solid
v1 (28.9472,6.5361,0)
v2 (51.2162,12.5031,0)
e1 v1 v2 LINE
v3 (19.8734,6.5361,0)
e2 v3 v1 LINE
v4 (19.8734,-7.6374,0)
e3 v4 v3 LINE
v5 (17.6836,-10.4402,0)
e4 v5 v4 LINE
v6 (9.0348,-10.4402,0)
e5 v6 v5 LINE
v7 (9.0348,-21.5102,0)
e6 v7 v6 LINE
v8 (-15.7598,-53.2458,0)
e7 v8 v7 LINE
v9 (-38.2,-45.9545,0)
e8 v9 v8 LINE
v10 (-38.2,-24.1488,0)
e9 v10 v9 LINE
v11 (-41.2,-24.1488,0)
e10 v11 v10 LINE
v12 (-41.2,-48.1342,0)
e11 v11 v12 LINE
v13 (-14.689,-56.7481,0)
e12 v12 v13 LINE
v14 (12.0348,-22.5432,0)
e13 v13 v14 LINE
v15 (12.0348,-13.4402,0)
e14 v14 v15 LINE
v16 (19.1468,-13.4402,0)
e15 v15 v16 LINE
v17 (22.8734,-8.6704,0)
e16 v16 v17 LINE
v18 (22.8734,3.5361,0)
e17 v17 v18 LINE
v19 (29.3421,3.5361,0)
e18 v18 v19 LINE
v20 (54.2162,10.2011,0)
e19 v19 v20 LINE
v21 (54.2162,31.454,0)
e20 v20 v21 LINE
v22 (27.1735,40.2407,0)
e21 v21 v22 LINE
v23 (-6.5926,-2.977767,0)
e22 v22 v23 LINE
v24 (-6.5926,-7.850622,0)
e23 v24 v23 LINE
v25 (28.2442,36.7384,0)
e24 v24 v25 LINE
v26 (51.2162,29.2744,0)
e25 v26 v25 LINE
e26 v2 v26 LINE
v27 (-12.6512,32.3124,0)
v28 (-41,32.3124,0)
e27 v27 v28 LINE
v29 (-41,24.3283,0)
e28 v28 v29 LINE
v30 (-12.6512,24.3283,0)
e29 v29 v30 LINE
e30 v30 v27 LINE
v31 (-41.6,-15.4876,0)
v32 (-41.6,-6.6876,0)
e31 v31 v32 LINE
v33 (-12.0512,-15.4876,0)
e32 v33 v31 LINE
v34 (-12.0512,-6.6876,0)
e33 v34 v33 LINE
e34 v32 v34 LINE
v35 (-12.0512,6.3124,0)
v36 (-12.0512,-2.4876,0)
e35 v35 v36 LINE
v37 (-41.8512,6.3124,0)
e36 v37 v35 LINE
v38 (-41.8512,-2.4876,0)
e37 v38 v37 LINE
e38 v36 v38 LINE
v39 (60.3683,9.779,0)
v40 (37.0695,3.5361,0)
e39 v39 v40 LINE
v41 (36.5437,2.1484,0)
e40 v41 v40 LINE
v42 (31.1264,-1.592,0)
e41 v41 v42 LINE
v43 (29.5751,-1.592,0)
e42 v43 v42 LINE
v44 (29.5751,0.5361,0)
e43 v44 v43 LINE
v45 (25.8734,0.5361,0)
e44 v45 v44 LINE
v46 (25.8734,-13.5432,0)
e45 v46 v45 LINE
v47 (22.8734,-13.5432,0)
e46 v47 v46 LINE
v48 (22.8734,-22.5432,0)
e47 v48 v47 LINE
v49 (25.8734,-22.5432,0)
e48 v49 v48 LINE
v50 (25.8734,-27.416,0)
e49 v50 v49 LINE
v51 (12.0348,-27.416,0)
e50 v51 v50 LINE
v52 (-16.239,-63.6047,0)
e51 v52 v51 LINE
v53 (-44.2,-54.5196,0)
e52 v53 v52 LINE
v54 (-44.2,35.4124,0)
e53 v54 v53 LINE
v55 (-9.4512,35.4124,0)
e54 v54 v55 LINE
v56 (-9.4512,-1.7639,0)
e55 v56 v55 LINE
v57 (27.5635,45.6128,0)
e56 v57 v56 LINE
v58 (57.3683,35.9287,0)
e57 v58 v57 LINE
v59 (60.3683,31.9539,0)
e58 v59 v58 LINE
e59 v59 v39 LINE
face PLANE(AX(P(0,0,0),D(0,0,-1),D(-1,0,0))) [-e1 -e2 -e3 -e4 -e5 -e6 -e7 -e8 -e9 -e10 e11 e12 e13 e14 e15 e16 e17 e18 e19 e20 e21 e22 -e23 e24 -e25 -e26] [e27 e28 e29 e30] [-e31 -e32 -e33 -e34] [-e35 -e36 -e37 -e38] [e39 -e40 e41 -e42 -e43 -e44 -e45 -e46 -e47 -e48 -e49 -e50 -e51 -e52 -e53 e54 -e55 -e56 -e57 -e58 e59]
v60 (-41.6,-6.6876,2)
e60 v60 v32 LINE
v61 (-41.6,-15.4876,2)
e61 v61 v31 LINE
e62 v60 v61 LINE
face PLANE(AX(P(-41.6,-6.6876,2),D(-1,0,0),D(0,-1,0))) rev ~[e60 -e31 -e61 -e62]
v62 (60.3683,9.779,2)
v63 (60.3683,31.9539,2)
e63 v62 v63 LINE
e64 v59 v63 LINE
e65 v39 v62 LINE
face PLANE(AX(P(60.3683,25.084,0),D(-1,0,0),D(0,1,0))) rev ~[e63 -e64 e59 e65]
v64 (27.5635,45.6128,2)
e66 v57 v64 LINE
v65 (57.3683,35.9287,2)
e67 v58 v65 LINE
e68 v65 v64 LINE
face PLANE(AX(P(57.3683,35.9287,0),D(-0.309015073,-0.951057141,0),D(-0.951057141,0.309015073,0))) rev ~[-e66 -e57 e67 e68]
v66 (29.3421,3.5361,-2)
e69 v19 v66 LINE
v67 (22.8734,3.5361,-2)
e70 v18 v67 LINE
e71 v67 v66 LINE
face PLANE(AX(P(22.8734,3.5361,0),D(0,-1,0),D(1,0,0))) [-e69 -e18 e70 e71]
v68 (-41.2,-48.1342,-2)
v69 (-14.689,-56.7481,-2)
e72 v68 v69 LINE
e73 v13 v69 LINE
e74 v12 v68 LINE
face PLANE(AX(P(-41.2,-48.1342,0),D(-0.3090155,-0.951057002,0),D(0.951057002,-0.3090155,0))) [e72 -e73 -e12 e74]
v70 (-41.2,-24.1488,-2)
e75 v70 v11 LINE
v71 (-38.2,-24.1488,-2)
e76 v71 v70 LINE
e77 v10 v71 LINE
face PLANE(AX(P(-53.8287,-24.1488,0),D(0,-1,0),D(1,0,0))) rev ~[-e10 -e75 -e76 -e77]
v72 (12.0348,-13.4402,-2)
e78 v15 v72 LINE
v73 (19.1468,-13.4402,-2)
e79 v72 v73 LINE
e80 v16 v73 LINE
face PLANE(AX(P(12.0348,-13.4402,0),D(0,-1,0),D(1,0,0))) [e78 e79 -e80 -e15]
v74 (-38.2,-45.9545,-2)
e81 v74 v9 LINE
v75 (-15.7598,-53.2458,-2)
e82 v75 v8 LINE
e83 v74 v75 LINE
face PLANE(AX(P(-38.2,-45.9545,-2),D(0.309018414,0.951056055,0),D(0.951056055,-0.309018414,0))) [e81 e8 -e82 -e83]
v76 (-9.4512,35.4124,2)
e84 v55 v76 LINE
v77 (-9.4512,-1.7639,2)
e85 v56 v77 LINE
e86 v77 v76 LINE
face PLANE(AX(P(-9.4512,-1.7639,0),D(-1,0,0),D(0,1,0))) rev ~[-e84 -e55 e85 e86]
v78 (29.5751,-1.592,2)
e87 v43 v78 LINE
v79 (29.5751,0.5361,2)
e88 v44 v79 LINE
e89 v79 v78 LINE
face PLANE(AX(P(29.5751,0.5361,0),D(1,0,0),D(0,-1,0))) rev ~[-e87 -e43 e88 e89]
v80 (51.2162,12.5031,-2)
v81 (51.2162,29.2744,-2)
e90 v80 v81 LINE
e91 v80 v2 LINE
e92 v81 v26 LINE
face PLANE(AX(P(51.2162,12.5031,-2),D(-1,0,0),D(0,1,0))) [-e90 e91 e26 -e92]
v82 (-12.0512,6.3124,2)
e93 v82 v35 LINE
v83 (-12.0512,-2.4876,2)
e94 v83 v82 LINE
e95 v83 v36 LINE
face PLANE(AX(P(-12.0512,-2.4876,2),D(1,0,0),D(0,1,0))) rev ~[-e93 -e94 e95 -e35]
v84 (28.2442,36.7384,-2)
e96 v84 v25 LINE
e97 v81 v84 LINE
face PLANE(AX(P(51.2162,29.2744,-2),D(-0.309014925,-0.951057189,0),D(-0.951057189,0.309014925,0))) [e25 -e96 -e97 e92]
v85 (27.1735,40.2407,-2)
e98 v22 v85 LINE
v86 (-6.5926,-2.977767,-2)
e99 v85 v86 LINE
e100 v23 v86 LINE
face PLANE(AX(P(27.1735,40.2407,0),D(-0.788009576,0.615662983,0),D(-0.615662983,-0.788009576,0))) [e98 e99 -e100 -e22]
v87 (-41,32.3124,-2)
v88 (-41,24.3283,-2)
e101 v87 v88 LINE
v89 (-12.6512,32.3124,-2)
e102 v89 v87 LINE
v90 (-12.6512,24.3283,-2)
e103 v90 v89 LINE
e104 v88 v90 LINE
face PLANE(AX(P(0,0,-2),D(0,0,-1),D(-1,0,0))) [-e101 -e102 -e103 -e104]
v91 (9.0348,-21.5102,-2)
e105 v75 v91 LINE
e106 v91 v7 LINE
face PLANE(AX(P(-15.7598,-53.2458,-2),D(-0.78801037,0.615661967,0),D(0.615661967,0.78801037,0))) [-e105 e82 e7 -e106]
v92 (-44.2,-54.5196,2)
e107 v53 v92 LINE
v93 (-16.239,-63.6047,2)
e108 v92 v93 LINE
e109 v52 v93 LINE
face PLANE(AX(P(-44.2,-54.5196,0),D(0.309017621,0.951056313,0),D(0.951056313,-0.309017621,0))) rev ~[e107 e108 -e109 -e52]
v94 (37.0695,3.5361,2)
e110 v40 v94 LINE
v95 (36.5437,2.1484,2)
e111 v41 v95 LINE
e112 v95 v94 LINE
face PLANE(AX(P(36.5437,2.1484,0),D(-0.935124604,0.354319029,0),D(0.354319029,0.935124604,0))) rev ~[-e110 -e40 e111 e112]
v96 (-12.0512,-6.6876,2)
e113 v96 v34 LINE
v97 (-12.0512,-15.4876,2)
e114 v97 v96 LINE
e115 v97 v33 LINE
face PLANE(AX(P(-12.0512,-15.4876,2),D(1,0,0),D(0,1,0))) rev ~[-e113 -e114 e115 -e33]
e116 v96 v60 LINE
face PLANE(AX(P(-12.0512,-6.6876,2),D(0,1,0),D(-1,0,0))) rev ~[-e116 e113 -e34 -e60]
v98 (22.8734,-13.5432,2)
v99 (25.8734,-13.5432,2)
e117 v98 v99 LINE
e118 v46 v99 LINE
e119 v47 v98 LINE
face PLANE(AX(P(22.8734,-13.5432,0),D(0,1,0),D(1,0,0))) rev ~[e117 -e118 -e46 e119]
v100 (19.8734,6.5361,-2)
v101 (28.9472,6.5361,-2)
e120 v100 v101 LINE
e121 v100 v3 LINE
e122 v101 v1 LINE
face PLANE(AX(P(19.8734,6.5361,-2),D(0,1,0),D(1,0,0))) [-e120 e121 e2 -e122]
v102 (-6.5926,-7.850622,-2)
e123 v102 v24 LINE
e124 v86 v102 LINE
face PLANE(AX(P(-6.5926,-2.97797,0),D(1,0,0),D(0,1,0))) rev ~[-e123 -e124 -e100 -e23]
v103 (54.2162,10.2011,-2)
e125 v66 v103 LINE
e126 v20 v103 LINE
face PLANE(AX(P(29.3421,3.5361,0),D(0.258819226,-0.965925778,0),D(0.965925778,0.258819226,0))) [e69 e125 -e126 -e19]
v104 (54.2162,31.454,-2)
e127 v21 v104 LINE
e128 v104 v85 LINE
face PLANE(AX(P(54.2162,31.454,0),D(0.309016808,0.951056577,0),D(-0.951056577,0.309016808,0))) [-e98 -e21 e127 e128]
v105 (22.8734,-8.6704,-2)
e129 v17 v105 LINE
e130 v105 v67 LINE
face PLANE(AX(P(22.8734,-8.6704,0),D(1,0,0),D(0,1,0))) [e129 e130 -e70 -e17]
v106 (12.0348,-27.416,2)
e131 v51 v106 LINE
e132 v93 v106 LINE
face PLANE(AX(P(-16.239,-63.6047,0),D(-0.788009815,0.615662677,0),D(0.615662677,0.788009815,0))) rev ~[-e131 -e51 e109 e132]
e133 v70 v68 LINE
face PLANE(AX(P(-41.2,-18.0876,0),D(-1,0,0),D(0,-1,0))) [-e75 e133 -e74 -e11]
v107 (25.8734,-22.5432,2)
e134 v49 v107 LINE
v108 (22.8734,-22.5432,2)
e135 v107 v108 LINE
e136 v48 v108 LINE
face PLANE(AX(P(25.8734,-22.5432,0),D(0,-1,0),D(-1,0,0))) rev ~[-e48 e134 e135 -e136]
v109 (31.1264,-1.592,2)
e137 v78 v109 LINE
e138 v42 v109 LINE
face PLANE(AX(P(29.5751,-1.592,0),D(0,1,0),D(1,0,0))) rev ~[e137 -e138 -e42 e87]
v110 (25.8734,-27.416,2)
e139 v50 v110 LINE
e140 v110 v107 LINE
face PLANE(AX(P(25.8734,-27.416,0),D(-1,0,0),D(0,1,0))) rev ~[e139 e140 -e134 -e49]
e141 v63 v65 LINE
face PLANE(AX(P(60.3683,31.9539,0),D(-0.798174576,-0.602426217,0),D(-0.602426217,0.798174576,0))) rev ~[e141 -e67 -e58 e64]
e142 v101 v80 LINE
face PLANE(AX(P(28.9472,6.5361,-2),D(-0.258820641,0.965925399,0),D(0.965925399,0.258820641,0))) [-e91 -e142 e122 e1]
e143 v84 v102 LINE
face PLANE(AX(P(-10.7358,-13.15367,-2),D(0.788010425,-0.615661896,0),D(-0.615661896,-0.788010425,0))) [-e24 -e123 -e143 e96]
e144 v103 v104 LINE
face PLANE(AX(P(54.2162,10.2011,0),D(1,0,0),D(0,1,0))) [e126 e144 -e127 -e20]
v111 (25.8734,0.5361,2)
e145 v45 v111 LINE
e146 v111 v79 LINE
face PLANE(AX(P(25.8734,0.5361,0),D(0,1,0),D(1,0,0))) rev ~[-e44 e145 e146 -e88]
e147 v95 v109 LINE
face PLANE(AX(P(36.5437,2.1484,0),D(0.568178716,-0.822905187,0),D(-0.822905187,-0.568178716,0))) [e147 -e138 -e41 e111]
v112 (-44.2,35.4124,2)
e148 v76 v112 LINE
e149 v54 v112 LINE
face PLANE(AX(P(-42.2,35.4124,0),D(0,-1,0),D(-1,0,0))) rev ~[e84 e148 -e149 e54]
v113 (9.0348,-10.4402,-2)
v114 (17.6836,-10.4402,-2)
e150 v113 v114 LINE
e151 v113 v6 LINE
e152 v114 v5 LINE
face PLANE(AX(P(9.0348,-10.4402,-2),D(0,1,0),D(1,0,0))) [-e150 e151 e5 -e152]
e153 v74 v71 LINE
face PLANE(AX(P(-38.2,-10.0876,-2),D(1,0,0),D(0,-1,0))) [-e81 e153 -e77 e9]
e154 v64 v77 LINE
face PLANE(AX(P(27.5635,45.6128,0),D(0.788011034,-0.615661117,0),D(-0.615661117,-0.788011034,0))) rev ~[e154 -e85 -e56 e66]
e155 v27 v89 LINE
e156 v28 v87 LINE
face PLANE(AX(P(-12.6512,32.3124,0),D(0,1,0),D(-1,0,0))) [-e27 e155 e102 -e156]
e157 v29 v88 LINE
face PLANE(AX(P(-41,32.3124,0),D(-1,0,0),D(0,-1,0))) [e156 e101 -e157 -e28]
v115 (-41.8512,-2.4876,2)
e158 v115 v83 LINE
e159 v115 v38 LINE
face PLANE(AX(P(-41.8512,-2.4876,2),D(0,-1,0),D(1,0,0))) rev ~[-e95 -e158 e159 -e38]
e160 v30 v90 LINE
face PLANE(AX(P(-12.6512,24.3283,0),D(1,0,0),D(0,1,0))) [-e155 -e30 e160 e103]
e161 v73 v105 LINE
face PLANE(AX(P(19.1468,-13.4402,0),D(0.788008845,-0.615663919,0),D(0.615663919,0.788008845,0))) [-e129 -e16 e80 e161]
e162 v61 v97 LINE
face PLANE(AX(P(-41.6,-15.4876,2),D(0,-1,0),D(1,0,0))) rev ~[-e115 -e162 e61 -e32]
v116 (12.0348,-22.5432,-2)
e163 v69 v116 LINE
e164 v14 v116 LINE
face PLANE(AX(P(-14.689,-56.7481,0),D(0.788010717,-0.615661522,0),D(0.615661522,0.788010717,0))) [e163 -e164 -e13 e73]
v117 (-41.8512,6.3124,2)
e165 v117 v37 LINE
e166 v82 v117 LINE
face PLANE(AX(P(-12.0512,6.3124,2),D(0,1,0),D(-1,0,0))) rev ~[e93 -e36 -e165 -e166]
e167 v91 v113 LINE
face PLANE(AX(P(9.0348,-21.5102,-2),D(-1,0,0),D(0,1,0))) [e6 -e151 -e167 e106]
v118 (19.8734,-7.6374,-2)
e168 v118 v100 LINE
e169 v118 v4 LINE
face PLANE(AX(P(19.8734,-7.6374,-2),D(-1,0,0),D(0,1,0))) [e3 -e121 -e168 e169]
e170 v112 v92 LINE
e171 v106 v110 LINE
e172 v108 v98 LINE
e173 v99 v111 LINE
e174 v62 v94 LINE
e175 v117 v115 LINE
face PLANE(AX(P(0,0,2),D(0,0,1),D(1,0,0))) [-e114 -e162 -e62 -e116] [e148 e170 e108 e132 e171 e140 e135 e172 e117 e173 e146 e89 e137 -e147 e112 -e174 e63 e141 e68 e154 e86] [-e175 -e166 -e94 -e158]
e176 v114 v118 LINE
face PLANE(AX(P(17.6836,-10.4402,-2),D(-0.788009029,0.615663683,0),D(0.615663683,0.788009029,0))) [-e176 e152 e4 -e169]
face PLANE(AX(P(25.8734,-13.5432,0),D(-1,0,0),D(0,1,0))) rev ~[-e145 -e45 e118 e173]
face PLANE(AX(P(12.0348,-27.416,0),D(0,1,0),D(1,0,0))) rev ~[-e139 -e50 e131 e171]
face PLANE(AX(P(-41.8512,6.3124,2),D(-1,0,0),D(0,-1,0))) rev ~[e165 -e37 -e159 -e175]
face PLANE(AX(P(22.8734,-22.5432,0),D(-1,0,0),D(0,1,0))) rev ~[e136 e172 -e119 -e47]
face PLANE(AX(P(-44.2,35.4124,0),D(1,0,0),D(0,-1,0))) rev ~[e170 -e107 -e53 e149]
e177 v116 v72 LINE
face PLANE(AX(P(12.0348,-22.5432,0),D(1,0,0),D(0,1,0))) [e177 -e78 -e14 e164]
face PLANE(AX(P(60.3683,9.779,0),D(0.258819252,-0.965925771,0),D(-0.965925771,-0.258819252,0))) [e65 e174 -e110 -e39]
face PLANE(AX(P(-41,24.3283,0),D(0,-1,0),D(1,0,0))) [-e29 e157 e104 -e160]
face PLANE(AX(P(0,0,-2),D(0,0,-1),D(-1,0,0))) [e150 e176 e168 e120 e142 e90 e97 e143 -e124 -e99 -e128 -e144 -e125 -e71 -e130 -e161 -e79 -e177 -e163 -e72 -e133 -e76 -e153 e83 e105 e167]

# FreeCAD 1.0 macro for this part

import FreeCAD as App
import Part
import Sketcher

V = App.Vector
Q = App.Units.Quantity

doc = App.newDocument("Part")
body = doc.addObject("PartDesign::Body", "Body")

sketch1 = doc.addObject("Sketcher::SketchObject", "Sketch")
body.addObject(sketch1)
sketch1.AttachmentSupport = (doc.XY_Plane, [""])
sketch1.MapMode = "FlatFace"
sketch1.addGeometry(Part.LineSegment(V(31.1264, -1.592, 0), V(36.5437, 2.1484, 0)), False)
sketch1.addGeometry(Part.LineSegment(V(36.5437, 2.1484, 0), V(37.0695, 3.5361, 0)), False)
sketch1.addGeometry(Part.LineSegment(V(37.0695, 3.5361, 0), V(60.3683, 9.779, 0)), False)
sketch1.addGeometry(Part.LineSegment(V(60.3683, 9.779, 0), V(60.3683, 31.9539, 0)), False)
sketch1.addGeometry(Part.LineSegment(V(60.3683, 31.9539, 0), V(57.3683, 35.9287, 0)), False)
sketch1.addGeometry(Part.LineSegment(V(57.3683, 35.9287, 0), V(27.5635, 45.6128, 0)), False)
sketch1.addGeometry(Part.LineSegment(V(27.5635, 45.6128, 0), V(-9.4512, -1.7639, 0)), False)
sketch1.addGeometry(Part.LineSegment(V(-9.4512, -1.7639, 0), V(-9.4512, 35.4124, 0)), False)
sketch1.addGeometry(Part.LineSegment(V(-9.4512, 35.4124, 0), V(-44.2, 35.4124, 0)), False)
sketch1.addGeometry(Part.LineSegment(V(-44.2, 35.4124, 0), V(-44.2, -54.5196, 0)), False)
sketch1.addGeometry(Part.LineSegment(V(-44.2, -54.5196, 0), V(-16.239, -63.6047, 0)), False)
sketch1.addGeometry(Part.LineSegment(V(-16.239, -63.6047, 0), V(12.0348, -27.416, 0)), False)
sketch1.addGeometry(Part.LineSegment(V(12.0348, -27.416, 0), V(25.8734, -27.416, 0)), False)
sketch1.addGeometry(Part.LineSegment(V(25.8734, -27.416, 0), V(25.8734, -22.5432, 0)), False)
sketch1.addGeometry(Part.LineSegment(V(25.8734, -22.5432, 0), V(22.8734, -22.5432, 0)), False)
sketch1.addGeometry(Part.LineSegment(V(22.8734, -22.5432, 0), V(22.8734, -13.5432, 0)), False)
sketch1.addGeometry(Part.LineSegment(V(22.8734, -13.5432, 0), V(25.8734, -13.5432, 0)), False)
sketch1.addGeometry(Part.LineSegment(V(25.8734, -13.5432, 0), V(25.8734, 0.5361, 0)), False)
sketch1.addGeometry(Part.LineSegment(V(25.8734, 0.5361, 0), V(29.5751, 0.5361, 0)), False)
sketch1.addGeometry(Part.LineSegment(V(29.5751, 0.5361, 0), V(29.5751, -1.592, 0)), False)
sketch1.addGeometry(Part.LineSegment(V(29.5751, -1.592, 0), V(31.1264, -1.592, 0)), False)
sketch1.addGeometry(Part.LineSegment(V(-41.2, -15.0876, 0), V(-41.2, -7.0876, 0)), False)
sketch1.addGeometry(Part.LineSegment(V(-41.2, -7.0876, 0), V(-12.4512, -7.0876, 0)), False)
sketch1.addGeometry(Part.LineSegment(V(-12.4512, -7.0876, 0), V(-12.4512, -15.0876, 0)), False)
sketch1.addGeometry(Part.LineSegment(V(-12.4512, -15.0876, 0), V(-41.2, -15.0876, 0)), False)
sketch1.addGeometry(Part.LineSegment(V(-41.4512, 5.9124, 0), V(-12.4512, 5.9124, 0)), False)
sketch1.addGeometry(Part.LineSegment(V(-12.4512, 5.9124, 0), V(-12.4512, -2.0876, 0)), False)
sketch1.addGeometry(Part.LineSegment(V(-12.4512, -2.0876, 0), V(-41.4512, -2.0876, 0)), False)
sketch1.addGeometry(Part.LineSegment(V(-41.4512, -2.0876, 0), V(-41.4512, 5.9124, 0)), False)
sketch1.addConstraint(Sketcher.Constraint("Coincident", 0, 2, 1, 1))
sketch1.addConstraint(Sketcher.Constraint("Coincident", 1, 2, 2, 1))
sketch1.addConstraint(Sketcher.Constraint("Coincident", 2, 2, 3, 1))
sketch1.addConstraint(Sketcher.Constraint("Coincident", 3, 2, 4, 1))
sketch1.addConstraint(Sketcher.Constraint("Coincident", 4, 2, 5, 1))
sketch1.addConstraint(Sketcher.Constraint("Coincident", 5, 2, 6, 1))
sketch1.addConstraint(Sketcher.Constraint("Coincident", 6, 2, 7, 1))
sketch1.addConstraint(Sketcher.Constraint("Coincident", 7, 2, 8, 1))
sketch1.addConstraint(Sketcher.Constraint("Coincident", 8, 2, 9, 1))
sketch1.addConstraint(Sketcher.Constraint("Coincident", 9, 2, 10, 1))
sketch1.addConstraint(Sketcher.Constraint("Coincident", 10, 2, 11, 1))
sketch1.addConstraint(Sketcher.Constraint("Coincident", 11, 2, 12, 1))
sketch1.addConstraint(Sketcher.Constraint("Coincident", 12, 2, 13, 1))
sketch1.addConstraint(Sketcher.Constraint("Coincident", 13, 2, 14, 1))
sketch1.addConstraint(Sketcher.Constraint("Coincident", 14, 2, 15, 1))
sketch1.addConstraint(Sketcher.Constraint("Coincident", 15, 2, 16, 1))
sketch1.addConstraint(Sketcher.Constraint("Coincident", 16, 2, 17, 1))
sketch1.addConstraint(Sketcher.Constraint("Coincident", 17, 2, 18, 1))
sketch1.addConstraint(Sketcher.Constraint("Coincident", 18, 2, 19, 1))
sketch1.addConstraint(Sketcher.Constraint("Coincident", 19, 2, 20, 1))
sketch1.addConstraint(Sketcher.Constraint("Coincident", 20, 2, 0, 1))
sketch1.addConstraint(Sketcher.Constraint("Coincident", 21, 2, 22, 1))
sketch1.addConstraint(Sketcher.Constraint("Coincident", 22, 2, 23, 1))
sketch1.addConstraint(Sketcher.Constraint("Coincident", 23, 2, 24, 1))
sketch1.addConstraint(Sketcher.Constraint("Coincident", 24, 2, 21, 1))
sketch1.addConstraint(Sketcher.Constraint("Coincident", 25, 2, 26, 1))
sketch1.addConstraint(Sketcher.Constraint("Coincident", 26, 2, 27, 1))
sketch1.addConstraint(Sketcher.Constraint("Coincident", 27, 2, 28, 1))
sketch1.addConstraint(Sketcher.Constraint("Coincident", 28, 2, 25, 1))
sketch1.addConstraint(Sketcher.Constraint("Vertical", 3))
sketch1.addConstraint(Sketcher.Constraint("Vertical", 7))
sketch1.addConstraint(Sketcher.Constraint("Horizontal", 8))
sketch1.addConstraint(Sketcher.Constraint("Vertical", 9))
sketch1.addConstraint(Sketcher.Constraint("Horizontal", 12))
sketch1.addConstraint(Sketcher.Constraint("Vertical", 13))
sketch1.addConstraint(Sketcher.Constraint("Horizontal", 14))
sketch1.addConstraint(Sketcher.Constraint("Vertical", 15))
sketch1.addConstraint(Sketcher.Constraint("Horizontal", 16))
sketch1.addConstraint(Sketcher.Constraint("Vertical", 17))
sketch1.addConstraint(Sketcher.Constraint("Horizontal", 18))
sketch1.addConstraint(Sketcher.Constraint("Vertical", 19))
sketch1.addConstraint(Sketcher.Constraint("Horizontal", 20))
sketch1.addConstraint(Sketcher.Constraint("Vertical", 21))
sketch1.addConstraint(Sketcher.Constraint("Horizontal", 22))
sketch1.addConstraint(Sketcher.Constraint("Vertical", 23))
sketch1.addConstraint(Sketcher.Constraint("Horizontal", 24))
sketch1.addConstraint(Sketcher.Constraint("Horizontal", 25))
sketch1.addConstraint(Sketcher.Constraint("Vertical", 26))
sketch1.addConstraint(Sketcher.Constraint("Horizontal", 27))
sketch1.addConstraint(Sketcher.Constraint("Vertical", 28))
sketch1.addConstraint(Sketcher.Constraint("Parallel", 5, 10))
sketch1.addConstraint(Sketcher.Constraint("Parallel", 6, 11))
sketch1.addConstraint(Sketcher.Constraint("Vertical", 13, 2, 16, 2))
sketch1.addConstraint(Sketcher.Constraint("Vertical", 23, 2, 25, 2))
sketch1.addConstraint(Sketcher.Constraint("Equal", 23, 26))
sketch1.addConstraint(Sketcher.Constraint("DistanceY", 21, 1, 21, 2, 8.0))
sketch1.addConstraint(Sketcher.Constraint("DistanceX", 14, 2, 14, 1, 3.0))
sketch1.addConstraint(Sketcher.Constraint("DistanceX", 25, 1, 25, 2, 29.0))
sketch1.addConstraint(Sketcher.Constraint("DistanceY", 15, 1, 15, 2, 9.0))
sketch1.addConstraint(Sketcher.Constraint("Angle", 2, Q("15 deg")))
sketch1.addConstraint(Sketcher.Constraint("Angle", 5, Q("162 deg")))
sketch1.addConstraint(Sketcher.Constraint("Angle", 6, Q("-128 deg")))
sketch1.addConstraint(Sketcher.Constraint("DistanceX", 4, 2, 3, 2, 3.0))
sketch1.addConstraint(Sketcher.Constraint("DistanceY", 17, 2, 1, 2, 3.0))
sketch1.addConstraint(Sketcher.Constraint("DistanceX", 8, 2, 21, 2, 3.0))
sketch1.addConstraint(Sketcher.Constraint("DistanceX", 22, 2, 6, 2, 3.0))
sketch1.addConstraint(Sketcher.Constraint("DistanceY", 22, 2, 25, 2, 13.0))
sketch1.addConstraint(Sketcher.Constraint("Distance", 10, 29.4))
sketch1.addConstraint(Sketcher.Constraint("DistanceX", 8, 2, -1, 1, 44.2))
sketch1.addConstraint(Sketcher.Constraint("DistanceY", 6, 2, 1, 2, 5.3))
sketch1.addConstraint(Sketcher.Constraint("DistanceY", 21, 2, 8, 2, 42.5))
sketch1.addConstraint(Sketcher.Constraint("DistanceY", 3, 1, 3, 2, 22.175))
sketch1.addConstraint(Sketcher.Constraint("DistanceY", 9, 2, 9, 1, 89.932))
sketch1.addConstraint(Sketcher.Constraint("DistanceY", 19, 2, 19, 1, 2.128))
sketch1.addConstraint(Sketcher.Constraint("Distance", 1, 1.484))
sketch1.addConstraint(Sketcher.Constraint("DistanceX", 8, 2, 8, 1, 34.7488))
sketch1.addConstraint(Sketcher.Constraint("DistanceX", 12, 1, 12, 2, 13.8386))
sketch1.addConstraint(Sketcher.Constraint("DistanceX", 18, 1, 18, 2, 3.7017))
sketch1.addConstraint(Sketcher.Constraint("DistanceX", 20, 1, 20, 2, 1.5513))
sketch1.addConstraint(Sketcher.Constraint("DistanceY", 7, 1, 7, 2, 37.1763))
sketch1.addConstraint(Sketcher.Constraint("DistanceY", 13, 1, 13, 2, 4.8728))
sketch1.addConstraint(Sketcher.Constraint("DistanceY", 17, 1, 17, 2, 14.0793))
sketch1.addConstraint(Sketcher.Constraint("DistanceY", -1, 1, 1, 2, 3.536))
sketch1.addConstraint(Sketcher.Constraint("DistanceY", -1, 1, 2, 2, 9.779))
sketch1.addConstraint(Sketcher.Constraint("DistanceY", 4, 2, 5, 2, 9.684))
sketch1.addConstraint(Sketcher.Constraint("DistanceY", 3, 2, 5, 2, 13.659))
sketch1.addConstraint(Sketcher.Constraint("DistanceX", 6, 2, 0, 2, 45.995))
pad1 = doc.addObject("PartDesign::Pad", "Pad")
body.addObject(pad1)
pad1.Profile = sketch1
pad1.Length = 2

sketch2 = doc.addObject("Sketcher::SketchObject", "Sketch001")
body.addObject(sketch2)
sketch2.AttachmentSupport = (doc.XY_Plane, [""])
sketch2.MapMode = "FlatFace"
sketch2.addGeometry(Part.LineSegment(V(-12.4512, -15.0876, 0), V(-14.4512, -15.0876, 0)), False)
sketch2.addGeometry(Part.LineSegment(V(-14.4512, -15.0876, 0), V(-14.4512, -17.0876, 0)), False)
sketch2.addGeometry(Part.LineSegment(V(-14.4512, -17.0876, 0), V(-10.7358, -17.0876, 0)), False)
sketch2.addGeometry(Part.LineSegment(V(-10.7358, -17.0876, 0), V(-10.7358, -8.2808, 0)), False)
sketch2.addGeometry(Part.LineSegment(V(-10.7358, -8.2808, 0), V(27.1735, 40.2407, 0)), False)
sketch2.addGeometry(Part.LineSegment(V(27.1735, 40.2407, 0), V(54.2162, 31.454, 0)), False)
sketch2.addGeometry(Part.LineSegment(V(54.2162, 31.454, 0), V(54.2162, 10.2011, 0)), False)
sketch2.addGeometry(Part.LineSegment(V(54.2162, 10.2011, 0), V(29.3421, 3.5361, 0)), False)
sketch2.addGeometry(Part.LineSegment(V(29.3421, 3.5361, 0), V(22.8734, 3.5361, 0)), False)
sketch2.addGeometry(Part.LineSegment(V(22.8734, 3.5361, 0), V(22.8734, -8.6704, 0)), False)
sketch2.addGeometry(Part.LineSegment(V(22.8734, -8.6704, 0), V(19.1468, -13.4402, 0)), False)
sketch2.addGeometry(Part.LineSegment(V(19.1468, -13.4402, 0), V(12.0348, -13.4402, 0)), False)
sketch2.addGeometry(Part.LineSegment(V(12.0348, -13.4402, 0), V(12.0348, -22.5432, 0)), False)
sketch2.addGeometry(Part.LineSegment(V(12.0348, -22.5432, 0), V(-14.689, -56.7481, 0)), False)
sketch2.addGeometry(Part.LineSegment(V(-14.689, -56.7481, 0), V(-41.2, -48.1342, 0)), False)
sketch2.addGeometry(Part.LineSegment(V(-41.2, -48.1342, 0), V(-41.2, -18.0876, 0)), False)
sketch2.addGeometry(Part.LineSegment(V(-41.2, -18.0876, 0), V(-38.2, -18.0876, 0)), False)
sketch2.addGeometry(Part.LineSegment(V(-38.2, -18.0876, 0), V(-38.2, -15.0876, 0)), False)
sketch2.addGeometry(Part.LineSegment(V(-38.2, -15.0876, 0), V(-41.2, -15.0876, 0)), False)
sketch2.addGeometry(Part.LineSegment(V(-41.2, -15.0876, 0), V(-41.2, -7.0876, 0)), False)
sketch2.addGeometry(Part.LineSegment(V(-41.2, -7.0876, 0), V(-38.2, -7.0876, 0)), False)
sketch2.addGeometry(Part.LineSegment(V(-38.2, -7.0876, 0), V(-38.2, -2.0876, 0)), False)
sketch2.addGeometry(Part.LineSegment(V(-38.2, -2.0876, 0), V(-15.4512, -2.0876, 0)), False)
sketch2.addGeometry(Part.LineSegment(V(-15.4512, -2.0876, 0), V(-15.4512, -7.0876, 0)), False)
sketch2.addGeometry(Part.LineSegment(V(-15.4512, -7.0876, 0), V(-12.4512, -7.0876, 0)), False)
sketch2.addGeometry(Part.LineSegment(V(-12.4512, -7.0876, 0), V(-12.4512, -15.0876, 0)), False)
sketch2.addGeometry(Part.LineSegment(V(-41, 32.3124, 0), V(-12.6512, 32.3124, 0)), False)
sketch2.addGeometry(Part.LineSegment(V(-12.6512, 32.3124, 0), V(-12.6512, 24.3283, 0)), False)
sketch2.addGeometry(Part.LineSegment(V(-12.6512, 24.3283, 0), V(-41, 24.3283, 0)), False)
sketch2.addGeometry(Part.LineSegment(V(-41, 24.3283, 0), V(-41, 32.3124, 0)), False)
sketch2.addConstraint(Sketcher.Constraint("Coincident", 0, 2, 1, 1))
sketch2.addConstraint(Sketcher.Constraint("Coincident", 1, 2, 2, 1))
sketch2.addConstraint(Sketcher.Constraint("Coincident", 2, 2, 3, 1))
sketch2.addConstraint(Sketcher.Constraint("Coincident", 3, 2, 4, 1))
sketch2.addConstraint(Sketcher.Constraint("Coincident", 4, 2, 5, 1))
sketch2.addConstraint(Sketcher.Constraint("Coincident", 5, 2, 6, 1))
sketch2.addConstraint(Sketcher.Constraint("Coincident", 6, 2, 7, 1))
sketch2.addConstraint(Sketcher.Constraint("Coincident", 7, 2, 8, 1))
sketch2.addConstraint(Sketcher.Constraint("Coincident", 8, 2, 9, 1))
sketch2.addConstraint(Sketcher.Constraint("Coincident", 9, 2, 10, 1))
sketch2.addConstraint(Sketcher.Constraint("Coincident", 10, 2, 11, 1))
sketch2.addConstraint(Sketcher.Constraint("Coincident", 11, 2, 12, 1))
sketch2.addConstraint(Sketcher.Constraint("Coincident", 12, 2, 13, 1))
sketch2.addConstraint(Sketcher.Constraint("Coincident", 13, 2, 14, 1))
sketch2.addConstraint(Sketcher.Constraint("Coincident", 14, 2, 15, 1))
sketch2.addConstraint(Sketcher.Constraint("Coincident", 15, 2, 16, 1))
sketch2.addConstraint(Sketcher.Constraint("Coincident", 16, 2, 17, 1))
sketch2.addConstraint(Sketcher.Constraint("Coincident", 17, 2, 18, 1))
sketch2.addConstraint(Sketcher.Constraint("Coincident", 18, 2, 19, 1))
sketch2.addConstraint(Sketcher.Constraint("Coincident", 19, 2, 20, 1))
sketch2.addConstraint(Sketcher.Constraint("Coincident", 20, 2, 21, 1))
sketch2.addConstraint(Sketcher.Constraint("Coincident", 21, 2, 22, 1))
sketch2.addConstraint(Sketcher.Constraint("Coincident", 22, 2, 23, 1))
sketch2.addConstraint(Sketcher.Constraint("Coincident", 23, 2, 24, 1))
sketch2.addConstraint(Sketcher.Constraint("Coincident", 24, 2, 25, 1))
sketch2.addConstraint(Sketcher.Constraint("Coincident", 25, 2, 0, 1))
sketch2.addConstraint(Sketcher.Constraint("Coincident", 26, 2, 27, 1))
sketch2.addConstraint(Sketcher.Constraint("Coincident", 27, 2, 28, 1))
sketch2.addConstraint(Sketcher.Constraint("Coincident", 28, 2, 29, 1))
sketch2.addConstraint(Sketcher.Constraint("Coincident", 29, 2, 26, 1))
sketch2.addConstraint(Sketcher.Constraint("Horizontal", 0))
sketch2.addConstraint(Sketcher.Constraint("Vertical", 1))
sketch2.addConstraint(Sketcher.Constraint("Horizontal", 2))
sketch2.addConstraint(Sketcher.Constraint("Vertical", 3))
sketch2.addConstraint(Sketcher.Constraint("Vertical", 6))
sketch2.addConstraint(Sketcher.Constraint("Horizontal", 8))
sketch2.addConstraint(Sketcher.Constraint("Vertical", 9))
sketch2.addConstraint(Sketcher.Constraint("Horizontal", 11))
sketch2.addConstraint(Sketcher.Constraint("Vertical", 12))
sketch2.addConstraint(Sketcher.Constraint("Vertical", 15))
sketch2.addConstraint(Sketcher.Constraint("Horizontal", 16))
sketch2.addConstraint(Sketcher.Constraint("Vertical", 17))
sketch2.addConstraint(Sketcher.Constraint("Horizontal", 18))
sketch2.addConstraint(Sketcher.Constraint("Vertical", 19))
sketch2.addConstraint(Sketcher.Constraint("Horizontal", 20))
sketch2.addConstraint(Sketcher.Constraint("Vertical", 21))
sketch2.addConstraint(Sketcher.Constraint("Horizontal", 22))
sketch2.addConstraint(Sketcher.Constraint("Vertical", 23))
sketch2.addConstraint(Sketcher.Constraint("Horizontal", 24))
sketch2.addConstraint(Sketcher.Constraint("Vertical", 25))
sketch2.addConstraint(Sketcher.Constraint("Horizontal", 26))
sketch2.addConstraint(Sketcher.Constraint("Vertical", 27))
sketch2.addConstraint(Sketcher.Constraint("Horizontal", 28))
sketch2.addConstraint(Sketcher.Constraint("Vertical", 29))
sketch2.addConstraint(Sketcher.Constraint("Parallel", 4, 10))
sketch2.addConstraint(Sketcher.Constraint("Parallel", 10, 13))
sketch2.addConstraint(Sketcher.Constraint("Parallel", 5, 14))
sketch2.addConstraint(Sketcher.Constraint("Horizontal", 0, 2, 17, 2))
sketch2.addConstraint(Sketcher.Constraint("Horizontal", 20, 2, 23, 2))
sketch2.addConstraint(Sketcher.Constraint("Vertical", 15, 2, 18, 2))
sketch2.addConstraint(Sketcher.Constraint("Vertical", 17, 2, 20, 2))
sketch2.addConstraint(Sketcher.Constraint("Equal", 20, 24))
sketch2.addConstraint(Sketcher.Constraint("Equal", 0, 1))
sketch2.addConstraint(Sketcher.Constraint("Equal", 24, 17))
sketch2.addConstraint(Sketcher.Constraint("DistanceX", 26, 2, 24, 2, 0.2))
sketch2.addConstraint(Sketcher.Constraint("DistanceX", 19, 2, 28, 2, 0.2))
sketch2.addConstraint(Sketcher.Constraint("DistanceX", 0, 2, 0, 1, 2.0))
sketch2.addConstraint(Sketcher.Constraint("DistanceX", 16, 1, 16, 2, 3.0))
sketch2.addConstraint(Sketcher.Constraint("DistanceY", 19, 1, 19, 2, 8.0))
sketch2.addConstraint(Sketcher.Constraint("DistanceY", 21, 1, 21, 2, 5.0))
sketch2.addConstraint(Sketcher.Constraint("DistanceY", 27, 2, 27, 1, 7.984))
sketch2.addConstraint(Sketcher.Constraint("Angle", 4, Q("52 deg")))
sketch2.addConstraint(Sketcher.Constraint("Angle", 5, Q("-18 deg")))
sketch2.addConstraint(Sketcher.Constraint("Angle", 7, Q("-165 deg")))
sketch2.addConstraint(Sketcher.Constraint("DistanceX", 28, 2, -1, 1, 41.0))
sketch2.addConstraint(Sketcher.Constraint("DistanceX", 8, 2, 4, 2, 4.3))
sketch2.addConstraint(Sketcher.Constraint("DistanceY", 22, 2, 26, 2, 34.4))
sketch2.addConstraint(Sketcher.Constraint("DistanceX", 11, 2, 11, 1, 7.112))
sketch2.addConstraint(Sketcher.Constraint("DistanceY", 6, 2, 6, 1, 21.253))
sketch2.addConstraint(Sketcher.Constraint("DistanceY", 12, 2, 12, 1, 9.103))
sketch2.addConstraint(Sketcher.Constraint("Distance", 10, 6.053))
sketch2.addConstraint(Sketcher.Constraint("DistanceX", 2, 1, 2, 2, 3.7154))
sketch2.addConstraint(Sketcher.Constraint("DistanceX", 8, 2, 8, 1, 6.4687))
sketch2.addConstraint(Sketcher.Constraint("DistanceX", 22, 1, 22, 2, 22.7488))
sketch2.addConstraint(Sketcher.Constraint("DistanceY", 3, 1, 3, 2, 8.8068))
sketch2.addConstraint(Sketcher.Constraint("DistanceY", 9, 2, 9, 1, 12.2065))
sketch2.addConstraint(Sketcher.Constraint("DistanceY", 15, 1, 15, 2, 30.0466))
sketch2.addConstraint(Sketcher.Constraint("DistanceY", -1, 1, 5, 2, 31.454))
sketch2.addConstraint(Sketcher.Constraint("DistanceX", -1, 1, 7, 2, 29.342))
sketch2.addConstraint(Sketcher.Constraint("DistanceY", -1, 1, 7, 2, 3.536))
pad2 = doc.addObject("PartDesign::Pad", "Pad001")
body.addObject(pad2)
pad2.Profile = sketch2
pad2.Length = 2
pad2.Reversed = True

sketch3 = doc.addObject("Sketcher::SketchObject", "Sketch002")
body.addObject(sketch3)
sketch3.AttachmentSupport = (doc.XY_Plane, [""])
sketch3.MapMode = "FlatFace"
sketch3.AttachmentOffset = App.Placement(V(0, 0, -2), App.Rotation())
sketch3.addGeometry(Part.LineSegment(V(28.2442, 36.7384, 0), V(51.2162, 29.2744, 0)), False)
sketch3.addGeometry(Part.LineSegment(V(51.2162, 29.2744, 0), V(51.2162, 12.5031, 0)), False)
sketch3.addGeometry(Part.LineSegment(V(51.2162, 12.5031, 0), V(28.9472, 6.5361, 0)), False)
sketch3.addGeometry(Part.LineSegment(V(28.9472, 6.5361, 0), V(19.8734, 6.5361, 0)), False)
sketch3.addGeometry(Part.LineSegment(V(19.8734, 6.5361, 0), V(19.8734, -7.6374, 0)), False)
sketch3.addGeometry(Part.LineSegment(V(19.8734, -7.6374, 0), V(17.6836, -10.4402, 0)), False)
sketch3.addGeometry(Part.LineSegment(V(17.6836, -10.4402, 0), V(9.0348, -10.4402, 0)), False)
sketch3.addGeometry(Part.LineSegment(V(9.0348, -10.4402, 0), V(9.0348, -21.5102, 0)), False)
sketch3.addGeometry(Part.LineSegment(V(9.0348, -21.5102, 0), V(-15.7598, -53.2458, 0)), False)
sketch3.addGeometry(Part.LineSegment(V(-15.7598, -53.2458, 0), V(-38.2, -45.9545, 0)), False)
sketch3.addGeometry(Part.LineSegment(V(-38.2, -45.9545, 0), V(-38.2, -10.0876, 0)), False)
sketch3.addGeometry(Part.LineSegment(V(-38.2, -10.0876, 0), V(-35.2, -10.0876, 0)), False)
sketch3.addGeometry(Part.LineSegment(V(-35.2, -10.0876, 0), V(-35.2, -5.0876, 0)), False)
sketch3.addGeometry(Part.LineSegment(V(-35.2, -5.0876, 0), V(-18.4512, -5.0876, 0)), False)
sketch3.addGeometry(Part.LineSegment(V(-18.4512, -5.0876, 0), V(-18.4512, -10.0876, 0)), False)
sketch3.addGeometry(Part.LineSegment(V(-18.4512, -10.0876, 0), V(-15.4512, -10.0876, 0)), False)
sketch3.addGeometry(Part.LineSegment(V(-15.4512, -10.0876, 0), V(-15.4512, -19.1891, 0)), False)
sketch3.addGeometry(Part.LineSegment(V(-15.4512, -19.1891, 0), V(28.2442, 36.7384, 0)), False)
sketch3.addConstraint(Sketcher.Constraint("Coincident", 0, 2, 1, 1))
sketch3.addConstraint(Sketcher.Constraint("Coincident", 1, 2, 2, 1))
sketch3.addConstraint(Sketcher.Constraint("Coincident", 2, 2, 3, 1))
sketch3.addConstraint(Sketcher.Constraint("Coincident", 3, 2, 4, 1))
sketch3.addConstraint(Sketcher.Constraint("Coincident", 4, 2, 5, 1))
sketch3.addConstraint(Sketcher.Constraint("Coincident", 5, 2, 6, 1))
sketch3.addConstraint(Sketcher.Constraint("Coincident", 6, 2, 7, 1))
sketch3.addConstraint(Sketcher.Constraint("Coincident", 7, 2, 8, 1))
sketch3.addConstraint(Sketcher.Constraint("Coincident", 8, 2, 9, 1))
sketch3.addConstraint(Sketcher.Constraint("Coincident", 9, 2, 10, 1))
sketch3.addConstraint(Sketcher.Constraint("Coincident", 10, 2, 11, 1))
sketch3.addConstraint(Sketcher.Constraint("Coincident", 11, 2, 12, 1))
sketch3.addConstraint(Sketcher.Constraint("Coincident", 12, 2, 13, 1))
sketch3.addConstraint(Sketcher.Constraint("Coincident", 13, 2, 14, 1))
sketch3.addConstraint(Sketcher.Constraint("Coincident", 14, 2, 15, 1))
sketch3.addConstraint(Sketcher.Constraint("Coincident", 15, 2, 16, 1))
sketch3.addConstraint(Sketcher.Constraint("Coincident", 16, 2, 17, 1))
sketch3.addConstraint(Sketcher.Constraint("Coincident", 17, 2, 0, 1))
sketch3.addConstraint(Sketcher.Constraint("Vertical", 1))
sketch3.addConstraint(Sketcher.Constraint("Horizontal", 3))
sketch3.addConstraint(Sketcher.Constraint("Vertical", 4))
sketch3.addConstraint(Sketcher.Constraint("Horizontal", 6))
sketch3.addConstraint(Sketcher.Constraint("Vertical", 7))
sketch3.addConstraint(Sketcher.Constraint("Vertical", 10))
sketch3.addConstraint(Sketcher.Constraint("Horizontal", 11))
sketch3.addConstraint(Sketcher.Constraint("Vertical", 12))
sketch3.addConstraint(Sketcher.Constraint("Horizontal", 13))
sketch3.addConstraint(Sketcher.Constraint("Vertical", 14))
sketch3.addConstraint(Sketcher.Constraint("Horizontal", 15))
sketch3.addConstraint(Sketcher.Constraint("Vertical", 16))
sketch3.addConstraint(Sketcher.Constraint("Parallel", 5, 8))
sketch3.addConstraint(Sketcher.Constraint("Parallel", 0, 9))
sketch3.addConstraint(Sketcher.Constraint("Parallel", 8, 17))
sketch3.addConstraint(Sketcher.Constraint("Horizontal", 11, 2, 14, 2))
sketch3.addConstraint(Sketcher.Constraint("Equal", 11, 15))
sketch3.addConstraint(Sketcher.Constraint("DistanceX", 11, 1, 11, 2, 3.0))
sketch3.addConstraint(Sketcher.Constraint("DistanceY", 12, 1, 12, 2, 5.0))
sketch3.addConstraint(Sketcher.Constraint("Angle", 0, Q("-17.9999 deg")))
sketch3.addConstraint(Sketcher.Constraint("Angle", 2, Q("-165 deg")))
sketch3.addConstraint(Sketcher.Constraint("Angle", 5, Q("-128.0002 deg")))
sketch3.addConstraint(Sketcher.Constraint("DistanceY", 7, 2, 7, 1, 11.07))
sketch3.addConstraint(Sketcher.Constraint("DistanceX", 9, 2, -1, 1, 38.2))
sketch3.addConstraint(Sketcher.Constraint("DistanceY", 10, 1, 10, 2, 35.867))
sketch3.addConstraint(Sketcher.Constraint("Distance", 8, 40.273))
sketch3.addConstraint(Sketcher.Constraint("Distance", 9, 23.595))
sketch3.addConstraint(Sketcher.Constraint("Distance", 17, 70.973))
sketch3.addConstraint(Sketcher.Constraint("DistanceX", 3, 2, 3, 1, 9.0738))
sketch3.addConstraint(Sketcher.Constraint("DistanceX", 6, 2, 6, 1, 8.6488))
sketch3.addConstraint(Sketcher.Constraint("DistanceX", 13, 1, 13, 2, 16.7488))
sketch3.addConstraint(Sketcher.Constraint("DistanceY", 1, 2, 1, 1, 16.7713))
sketch3.addConstraint(Sketcher.Constraint("DistanceY", 4, 2, 4, 1, 14.1735))
sketch3.addConstraint(Sketcher.Constraint("DistanceY", 16, 2, 16, 1, 9.1015))
sketch3.addConstraint(Sketcher.Constraint("DistanceY", -1, 1, 1, 2, 12.503))
sketch3.addConstraint(Sketcher.Constraint("DistanceY", -1, 1, 2, 2, 6.536))
pocket1 = doc.addObject("PartDesign::Pocket", "Pocket")
body.addObject(pocket1)
pocket1.Profile = sketch3
pocket1.Length = 2
pocket1.Reversed = True

sketch4 = doc.addObject("Sketcher::SketchObject", "Sketch003")
body.addObject(sketch4)
sketch4.AttachmentSupport = (doc.XY_Plane, [""])
sketch4.MapMode = "FlatFace"
sketch4.AttachmentOffset = App.Placement(V(0, 0, 2), App.Rotation())
sketch4.addGeometry(Part.LineSegment(V(-12.0512, -6.6876, 0), V(-41.6, -6.6876, 0)), False)
sketch4.addGeometry(Part.LineSegment(V(-41.6, -6.6876, 0), V(-41.6, -15.4876, 0)), False)
sketch4.addGeometry(Part.LineSegment(V(-41.6, -15.4876, 0), V(-12.0512, -15.4876, 0)), False)
sketch4.addGeometry(Part.LineSegment(V(-12.0512, -15.4876, 0), V(-12.0512, -6.6876, 0)), False)
sketch4.addGeometry(Part.LineSegment(V(-12.0512, 6.3124, 0), V(-41.8512, 6.3124, 0)), False)
sketch4.addGeometry(Part.LineSegment(V(-41.8512, 6.3124, 0), V(-41.8512, -2.4876, 0)), False)
sketch4.addGeometry(Part.LineSegment(V(-41.8512, -2.4876, 0), V(-12.0512, -2.4876, 0)), False)
sketch4.addGeometry(Part.LineSegment(V(-12.0512, -2.4876, 0), V(-12.0512, 6.3124, 0)), False)
sketch4.addConstraint(Sketcher.Constraint("Coincident", 0, 2, 1, 1))
sketch4.addConstraint(Sketcher.Constraint("Coincident", 1, 2, 2, 1))
sketch4.addConstraint(Sketcher.Constraint("Coincident", 2, 2, 3, 1))
sketch4.addConstraint(Sketcher.Constraint("Coincident", 3, 2, 0, 1))
sketch4.addConstraint(Sketcher.Constraint("Coincident", 4, 2, 5, 1))
sketch4.addConstraint(Sketcher.Constraint("Coincident", 5, 2, 6, 1))
sketch4.addConstraint(Sketcher.Constraint("Coincident", 6, 2, 7, 1))
sketch4.addConstraint(Sketcher.Constraint("Coincident", 7, 2, 4, 1))
sketch4.addConstraint(Sketcher.Constraint("Horizontal", 0))
sketch4.addConstraint(Sketcher.Constraint("Vertical", 1))
sketch4.addConstraint(Sketcher.Constraint("Horizontal", 2))
sketch4.addConstraint(Sketcher.Constraint("Vertical", 3))
sketch4.addConstraint(Sketcher.Constraint("Horizontal", 4))
sketch4.addConstraint(Sketcher.Constraint("Vertical", 5))
sketch4.addConstraint(Sketcher.Constraint("Horizontal", 6))
sketch4.addConstraint(Sketcher.Constraint("Vertical", 7))
sketch4.addConstraint(Sketcher.Constraint("Vertical", 3, 2, 6, 2))
sketch4.addConstraint(Sketcher.Constraint("Equal", 3, 5))
sketch4.addConstraint(Sketcher.Constraint("DistanceX", 4, 2, 4, 1, 29.8))
sketch4.addConstraint(Sketcher.Constraint("DistanceY", 1, 2, 1, 1, 8.8))
sketch4.addConstraint(Sketcher.Constraint("DistanceY", 0, 2, 4, 2, 13.0))
sketch4.addConstraint(Sketcher.Constraint("DistanceX", 0, 2, -1, 1, 41.6))
sketch4.addConstraint(Sketcher.Constraint("DistanceX", 0, 2, 0, 1, 29.5488))
sketch4.addConstraint(Sketcher.Constraint("DistanceY", 0, 2, -1, 1, 6.6876))
pocket2 = doc.addObject("PartDesign::Pocket", "Pocket001")
body.addObject(pocket2)
pocket2.Profile = sketch4
pocket2.Type = "ThroughAll"

sketch5 = doc.addObject("Sketcher::SketchObject", "Sketch004")
body.addObject(sketch5)
sketch5.AttachmentSupport = (doc.XY_Plane, [""])
sketch5.MapMode = "FlatFace"
sketch5.addGeometry(Part.LineSegment(V(-6.5926, 7.9946, 0), V(-6.5926, -24.1488, 0)), False)
sketch5.addGeometry(Part.LineSegment(V(-6.5926, -24.1488, 0), V(-53.8287, -24.1488, 0)), False)
sketch5.addGeometry(Part.LineSegment(V(-53.8287, -24.1488, 0), V(-53.8287, 7.9946, 0)), False)
sketch5.addGeometry(Part.LineSegment(V(-53.8287, 7.9946, 0), V(-6.5926, 7.9946, 0)), False)
sketch5.addConstraint(Sketcher.Constraint("Coincident", 0, 2, 1, 1))
sketch5.addConstraint(Sketcher.Constraint("Coincident", 1, 2, 2, 1))
sketch5.addConstraint(Sketcher.Constraint("Coincident", 2, 2, 3, 1))
sketch5.addConstraint(Sketcher.Constraint("Coincident", 3, 2, 0, 1))
sketch5.addConstraint(Sketcher.Constraint("Vertical", 0))
sketch5.addConstraint(Sketcher.Constraint("Horizontal", 1))
sketch5.addConstraint(Sketcher.Constraint("Vertical", 2))
sketch5.addConstraint(Sketcher.Constraint("Horizontal", 3))
sketch5.addConstraint(Sketcher.Constraint("DistanceX", 1, 2, 1, 1, 47.236))
sketch5.addConstraint(Sketcher.Constraint("DistanceY", 0, 2, 0, 1, 32.1434))
sketch5.addConstraint(Sketcher.Constraint("DistanceX", 0, 2, -1, 1, 6.5926))
sketch5.addConstraint(Sketcher.Constraint("DistanceY", 0, 2, -1, 1, 24.1488))
pocket3 = doc.addObject("PartDesign::Pocket", "Pocket002")
body.addObject(pocket3)
pocket3.Profile = sketch5
pocket3.Length = 10

doc.recompute()
